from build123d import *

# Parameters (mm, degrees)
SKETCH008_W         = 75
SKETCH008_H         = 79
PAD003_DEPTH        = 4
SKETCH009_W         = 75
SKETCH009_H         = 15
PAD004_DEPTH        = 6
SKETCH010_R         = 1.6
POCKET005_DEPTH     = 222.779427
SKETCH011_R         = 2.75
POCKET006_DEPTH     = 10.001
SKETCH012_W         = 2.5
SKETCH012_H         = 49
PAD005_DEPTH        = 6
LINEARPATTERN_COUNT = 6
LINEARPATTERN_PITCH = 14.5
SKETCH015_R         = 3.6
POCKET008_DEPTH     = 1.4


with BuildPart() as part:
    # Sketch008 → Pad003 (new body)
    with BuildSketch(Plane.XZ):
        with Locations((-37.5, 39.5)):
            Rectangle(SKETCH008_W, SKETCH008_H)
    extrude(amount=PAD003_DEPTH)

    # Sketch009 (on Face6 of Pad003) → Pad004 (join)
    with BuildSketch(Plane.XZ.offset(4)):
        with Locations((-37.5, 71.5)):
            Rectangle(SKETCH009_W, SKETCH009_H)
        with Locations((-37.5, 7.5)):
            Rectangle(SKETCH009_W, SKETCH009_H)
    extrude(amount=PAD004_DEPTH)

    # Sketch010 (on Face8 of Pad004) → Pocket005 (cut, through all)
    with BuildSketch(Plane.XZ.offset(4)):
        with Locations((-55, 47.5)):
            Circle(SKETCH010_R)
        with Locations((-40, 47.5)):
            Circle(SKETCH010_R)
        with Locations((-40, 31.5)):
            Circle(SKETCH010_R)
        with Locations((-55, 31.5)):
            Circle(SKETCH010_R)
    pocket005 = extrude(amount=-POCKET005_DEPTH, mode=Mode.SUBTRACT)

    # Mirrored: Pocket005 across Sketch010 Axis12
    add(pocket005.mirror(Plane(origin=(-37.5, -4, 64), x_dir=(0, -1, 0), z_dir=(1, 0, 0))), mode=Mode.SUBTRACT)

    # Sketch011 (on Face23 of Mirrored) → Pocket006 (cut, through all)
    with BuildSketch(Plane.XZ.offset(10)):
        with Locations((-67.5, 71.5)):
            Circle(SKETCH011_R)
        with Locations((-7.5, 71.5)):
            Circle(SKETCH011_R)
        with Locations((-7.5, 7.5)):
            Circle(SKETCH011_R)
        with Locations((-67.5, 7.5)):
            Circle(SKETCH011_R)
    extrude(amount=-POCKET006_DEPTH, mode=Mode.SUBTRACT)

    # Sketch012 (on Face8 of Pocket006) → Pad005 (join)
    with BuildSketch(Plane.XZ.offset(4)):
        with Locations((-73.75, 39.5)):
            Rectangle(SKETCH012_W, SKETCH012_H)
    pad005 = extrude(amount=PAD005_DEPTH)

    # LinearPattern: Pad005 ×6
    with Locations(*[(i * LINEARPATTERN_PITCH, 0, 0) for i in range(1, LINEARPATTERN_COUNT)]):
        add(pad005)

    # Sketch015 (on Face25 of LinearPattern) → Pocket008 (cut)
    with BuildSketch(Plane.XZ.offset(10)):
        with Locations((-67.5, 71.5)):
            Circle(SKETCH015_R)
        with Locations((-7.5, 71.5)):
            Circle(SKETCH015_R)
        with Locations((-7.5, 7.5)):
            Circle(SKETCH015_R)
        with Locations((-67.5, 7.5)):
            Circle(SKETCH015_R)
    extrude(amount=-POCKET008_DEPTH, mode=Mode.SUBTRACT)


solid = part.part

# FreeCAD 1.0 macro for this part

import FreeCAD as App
import Part
import Sketcher

V = App.Vector


def add_polygon(sketch, points):
    """Adds a closed chain of lines whose ends are joined by coincident constraints."""
    first, n = sketch.GeometryCount, len(points)
    for a, b in zip(points, points[1:] + points[:1]):
        sketch.addGeometry(Part.LineSegment(App.Vector(*a, 0), App.Vector(*b, 0)), False)
    for i in range(n):
        sketch.addConstraint(Sketcher.Constraint("Coincident", first + i, 2, first + (i + 1) % n, 1))

doc = App.newDocument("Part")
body = doc.addObject("PartDesign::Body", "Body")

# Sketch on XZ plane
sketch1 = body.newObject("Sketcher::SketchObject", "Sketch")
sketch1.AttachmentSupport = (doc.getObject("XZ_Plane"), [""])
sketch1.MapMode = "FlatFace"
add_polygon(sketch1, [(-75, 79), (-75, 0), (0, 0), (0, 79)])  # lines 0-3
sketch1.addConstraint(Sketcher.Constraint("Vertical", 0))
sketch1.addConstraint(Sketcher.Constraint("Horizontal", 1))
sketch1.addConstraint(Sketcher.Constraint("Vertical", 2))
sketch1.addConstraint(Sketcher.Constraint("Horizontal", 3))
sketch1.addConstraint(Sketcher.Constraint("Coincident", 1, 2, -1, 1))
sketch1.addConstraint(Sketcher.Constraint("DistanceX", 1, 1, 1, 2, 75.0))
sketch1.addConstraint(Sketcher.Constraint("DistanceY", 0, 2, 0, 1, 79.0))
pad1 = body.newObject("PartDesign::Pad", "Pad")
pad1.Profile = sketch1
pad1.Length = 4

# Sketch on XZ plane
sketch2 = body.newObject("Sketcher::SketchObject", "Sketch001")
sketch2.AttachmentSupport = (doc.getObject("XZ_Plane"), [""])
sketch2.MapMode = "FlatFace"
sketch2.AttachmentOffset = App.Placement(V(0, 0, 4), App.Rotation())
add_polygon(sketch2, [(-75, 79), (-75, 64), (0, 64), (0, 79)])  # lines 0-3
add_polygon(sketch2, [(-75, 15), (-75, 0), (0, 0), (0, 15)])  # lines 4-7
sketch2.addConstraint(Sketcher.Constraint("Vertical", 0))
sketch2.addConstraint(Sketcher.Constraint("Horizontal", 1))
sketch2.addConstraint(Sketcher.Constraint("Vertical", 2))
sketch2.addConstraint(Sketcher.Constraint("Horizontal", 3))
sketch2.addConstraint(Sketcher.Constraint("Vertical", 4))
sketch2.addConstraint(Sketcher.Constraint("Horizontal", 5))
sketch2.addConstraint(Sketcher.Constraint("Vertical", 6))
sketch2.addConstraint(Sketcher.Constraint("Horizontal", 7))
sketch2.addConstraint(Sketcher.Constraint("Coincident", 5, 2, -1, 1))
sketch2.addConstraint(Sketcher.Constraint("PointOnObject", 1, 2, -2))
sketch2.addConstraint(Sketcher.Constraint("Vertical", 3, 2, 4, 2))
sketch2.addConstraint(Sketcher.Constraint("Equal", 2, 4))
sketch2.addConstraint(Sketcher.Constraint("DistanceX", 1, 1, 1, 2, 75.0))
sketch2.addConstraint(Sketcher.Constraint("DistanceY", 0, 2, 0, 1, 15.0))
sketch2.addConstraint(Sketcher.Constraint("DistanceY", -1, 1, 0, 2, 64.0))
pad2 = body.newObject("PartDesign::Pad", "Pad001")
pad2.Profile = sketch2
pad2.Length = 6

# Sketch on XZ plane
sketch3 = body.newObject("Sketcher::SketchObject", "Sketch002")
sketch3.AttachmentSupport = (doc.getObject("XZ_Plane"), [""])
sketch3.MapMode = "FlatFace"
sketch3.AttachmentOffset = App.Placement(V(0, 0, 4), App.Rotation())
sketch3.addGeometry(Part.Circle(V(-55, 47.5, 0), V(0, 0, 1), 1.6), False)
sketch3.addGeometry(Part.Circle(V(-40, 47.5, 0), V(0, 0, 1), 1.6), False)
sketch3.addGeometry(Part.Circle(V(-40, 31.5, 0), V(0, 0, 1), 1.6), False)
sketch3.addGeometry(Part.Circle(V(-55, 31.5, 0), V(0, 0, 1), 1.6), False)
sketch3.addConstraint(Sketcher.Constraint("Equal", 0, 1))
sketch3.addConstraint(Sketcher.Constraint("Equal", 1, 2))
sketch3.addConstraint(Sketcher.Constraint("Equal", 2, 3))
sketch3.addConstraint(Sketcher.Constraint("Horizontal", 0, 3, 1, 3))
sketch3.addConstraint(Sketcher.Constraint("Horizontal", 2, 3, 3, 3))
sketch3.addConstraint(Sketcher.Constraint("Vertical", 1, 3, 2, 3))
sketch3.addConstraint(Sketcher.Constraint("Vertical", 0, 3, 3, 3))
sketch3.addConstraint(Sketcher.Constraint("Diameter", 0, 3.2))
sketch3.addConstraint(Sketcher.Constraint("DistanceX", 0, 3, -1, 1, 55.0))
sketch3.addConstraint(Sketcher.Constraint("DistanceX", 1, 3, -1, 1, 40.0))
sketch3.addConstraint(Sketcher.Constraint("DistanceY", 2, 3, 1, 3, 16.0))
sketch3.addConstraint(Sketcher.Constraint("DistanceY", -1, 1, 0, 3, 47.5))
pocket1 = body.newObject("PartDesign::Pocket", "Pocket")
pocket1.Profile = sketch3
pocket1.Type = "ThroughAll"
doc.recompute()

datumplane = body.newObject("PartDesign::Plane", "DatumPlane")
datumplane.AttachmentSupport = (doc.getObject("YZ_Plane"), [""])
datumplane.MapMode = "FlatFace"
datumplane.AttachmentOffset = App.Placement(V(0, 0, -37.5), App.Rotation())
mirrored = body.newObject("PartDesign::Mirrored", "Mirrored")
mirrored.Originals = [pocket1]
mirrored.MirrorPlane = (datumplane, [""])
body.Tip = mirrored

# Sketch on XZ plane
sketch4 = body.newObject("Sketcher::SketchObject", "Sketch003")
sketch4.AttachmentSupport = (doc.getObject("XZ_Plane"), [""])
sketch4.MapMode = "FlatFace"
sketch4.AttachmentOffset = App.Placement(V(0, 0, 10), App.Rotation())
sketch4.addGeometry(Part.Circle(V(-67.5, 71.5, 0), V(0, 0, 1), 2.8), False)
sketch4.addGeometry(Part.Circle(V(-7.5, 71.5, 0), V(0, 0, 1), 2.8), False)
sketch4.addGeometry(Part.Circle(V(-7.5, 7.5, 0), V(0, 0, 1), 2.8), False)
sketch4.addGeometry(Part.Circle(V(-67.5, 7.5, 0), V(0, 0, 1), 2.8), False)
sketch4.addConstraint(Sketcher.Constraint("Equal", 0, 1))
sketch4.addConstraint(Sketcher.Constraint("Equal", 1, 2))
sketch4.addConstraint(Sketcher.Constraint("Equal", 2, 3))
sketch4.addConstraint(Sketcher.Constraint("Horizontal", 0, 3, 1, 3))
sketch4.addConstraint(Sketcher.Constraint("Horizontal", 2, 3, 3, 3))
sketch4.addConstraint(Sketcher.Constraint("Vertical", 1, 3, 2, 3))
sketch4.addConstraint(Sketcher.Constraint("Vertical", 0, 3, 3, 3))
sketch4.addConstraint(Sketcher.Constraint("Diameter", 0, 5.5))
sketch4.addConstraint(Sketcher.Constraint("DistanceX", 0, 3, 1, 3, 60.0))
sketch4.addConstraint(Sketcher.Constraint("DistanceY", 2, 3, 1, 3, 64.0))
sketch4.addConstraint(Sketcher.Constraint("DistanceX", 0, 3, -1, 1, 67.5))
sketch4.addConstraint(Sketcher.Constraint("DistanceY", -1, 1, 0, 3, 71.5))
pocket2 = body.newObject("PartDesign::Pocket", "Pocket001")
pocket2.Profile = sketch4
pocket2.Type = "ThroughAll"

# Sketch on XZ plane
sketch5 = body.newObject("Sketcher::SketchObject", "Sketch004")
sketch5.AttachmentSupport = (doc.getObject("XZ_Plane"), [""])
sketch5.MapMode = "FlatFace"
sketch5.AttachmentOffset = App.Placement(V(0, 0, 4), App.Rotation())
add_polygon(sketch5, [(-75, 64), (-75, 15), (-72.5, 15), (-72.5, 64)])  # lines 0-3
sketch5.addConstraint(Sketcher.Constraint("Vertical", 0))
sketch5.addConstraint(Sketcher.Constraint("Horizontal", 1))
sketch5.addConstraint(Sketcher.Constraint("Vertical", 2))
sketch5.addConstraint(Sketcher.Constraint("Horizontal", 3))
sketch5.addConstraint(Sketcher.Constraint("DistanceY", 0, 2, 0, 1, 49.0))
sketch5.addConstraint(Sketcher.Constraint("DistanceX", 1, 1, 1, 2, 2.5))
sketch5.addConstraint(Sketcher.Constraint("DistanceX", 0, 2, -1, 1, 75.0))
sketch5.addConstraint(Sketcher.Constraint("DistanceY", -1, 1, 0, 2, 15.0))
pad3 = body.newObject("PartDesign::Pad", "Pad002")
pad3.Profile = sketch5
pad3.Length = 6
doc.recompute()

linearpattern = body.newObject("PartDesign::LinearPattern", "LinearPattern")
linearpattern.Originals = [pad3]
linearpattern.Direction = (doc.getObject("X_Axis"), [""])
linearpattern.Mode = "offset"
linearpattern.Offset = 14.5
linearpattern.Occurrences = 6
body.Tip = linearpattern

# Sketch on XZ plane
sketch6 = body.newObject("Sketcher::SketchObject", "Sketch005")
sketch6.AttachmentSupport = (doc.getObject("XZ_Plane"), [""])
sketch6.MapMode = "FlatFace"
sketch6.AttachmentOffset = App.Placement(V(0, 0, 10), App.Rotation())
sketch6.addGeometry(Part.Circle(V(-67.5, 71.5, 0), V(0, 0, 1), 3.6), False)
sketch6.addGeometry(Part.Circle(V(-7.5, 71.5, 0), V(0, 0, 1), 3.6), False)
sketch6.addGeometry(Part.Circle(V(-7.5, 7.5, 0), V(0, 0, 1), 3.6), False)
sketch6.addGeometry(Part.Circle(V(-67.5, 7.5, 0), V(0, 0, 1), 3.6), False)
sketch6.addConstraint(Sketcher.Constraint("Equal", 0, 1))
sketch6.addConstraint(Sketcher.Constraint("Equal", 1, 2))
sketch6.addConstraint(Sketcher.Constraint("Equal", 2, 3))
sketch6.addConstraint(Sketcher.Constraint("Horizontal", 0, 3, 1, 3))
sketch6.addConstraint(Sketcher.Constraint("Horizontal", 2, 3, 3, 3))
sketch6.addConstraint(Sketcher.Constraint("Vertical", 1, 3, 2, 3))
sketch6.addConstraint(Sketcher.Constraint("Vertical", 0, 3, 3, 3))
sketch6.addConstraint(Sketcher.Constraint("Diameter", 0, 7.2))
sketch6.addConstraint(Sketcher.Constraint("DistanceX", 0, 3, 1, 3, 60.0))
sketch6.addConstraint(Sketcher.Constraint("DistanceY", 2, 3, 1, 3, 64.0))
sketch6.addConstraint(Sketcher.Constraint("DistanceX", 0, 3, -1, 1, 67.5))
sketch6.addConstraint(Sketcher.Constraint("DistanceY", -1, 1, 0, 3, 71.5))
pocket3 = body.newObject("PartDesign::Pocket", "Pocket002")
pocket3.Profile = sketch6
pocket3.Length = 1.4

doc.recompute()
